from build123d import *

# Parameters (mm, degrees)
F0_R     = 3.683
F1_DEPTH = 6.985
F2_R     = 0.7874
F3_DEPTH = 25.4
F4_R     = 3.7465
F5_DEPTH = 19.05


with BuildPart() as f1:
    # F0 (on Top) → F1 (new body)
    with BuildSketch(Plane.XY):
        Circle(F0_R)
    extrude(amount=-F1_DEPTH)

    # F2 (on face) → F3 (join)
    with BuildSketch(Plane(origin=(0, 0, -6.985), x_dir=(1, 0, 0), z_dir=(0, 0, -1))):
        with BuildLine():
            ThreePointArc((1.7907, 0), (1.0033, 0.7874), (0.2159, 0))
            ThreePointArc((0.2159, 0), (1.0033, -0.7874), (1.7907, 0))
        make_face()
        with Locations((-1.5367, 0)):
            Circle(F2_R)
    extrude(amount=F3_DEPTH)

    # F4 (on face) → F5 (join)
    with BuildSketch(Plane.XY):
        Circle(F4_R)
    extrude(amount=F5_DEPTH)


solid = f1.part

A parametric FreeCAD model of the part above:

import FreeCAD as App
import Part
import Sketcher
Q = App.Units.Quantity

doc = App.newDocument("Part")
params = doc.addObject("Spreadsheet::Sheet", "Params")
for row, (alias, value) in enumerate([
    ("sketch1_diameter", "0.29 in"),
    ("pad1_length", "0.275 in"),
    ("sketch2_diameter", "0.062 in"),
    ("pad2_length", "1 in"),
    ("sketch3_diameter", "0.295 in"),
    ("pad3_length", "0.75 in"),
], start=1):
    params.set(f"A{row}", alias)
    params.set(f"B{row}", "=" + value)
    params.setAlias(f"B{row}", alias)

body = doc.addObject("PartDesign::Body", "Body")

sketch1 = body.newObject("Sketcher::SketchObject", "Sketch")
sketch1.AttachmentSupport = (doc.getObject("XY_Plane"), [""])
sketch1.MapMode = "FlatFace"
sketch1.addGeometry(Part.Circle(App.Vector(0, 0, 0), App.Vector(0, 0, 1), 3.683), False)
sketch1.addConstraint([
    Sketcher.Constraint("Coincident", 0, 3, -1, 1),
    Sketcher.Constraint("Diameter", 0, Q("0.29 in")),
])
sketch1.setExpression("Constraints[1]", "Params.sketch1_diameter")
pad1 = body.newObject("PartDesign::Pad", "Pad")
pad1.Profile = sketch1
pad1.setExpression("Length", "Params.pad1_length")
pad1.Reversed = True

sketch2 = body.newObject("Sketcher::SketchObject", "Sketch001")
sketch2.AttachmentSupport = (doc.getObject("XY_Plane"), [""])
sketch2.MapMode = "FlatFace"
sketch2.AttachmentOffset = App.Placement(App.Vector(0, 0, -0.275 * 25.4), App.Rotation())
sketch2.addGeometry([
    Part.Circle(App.Vector(1.0033, 0, 0), App.Vector(0, 0, 1), 0.7874),
    Part.Circle(App.Vector(-1.5367, 0, 0), App.Vector(0, 0, 1), 0.7874),
], False)
sketch2.addConstraint([
    Sketcher.Constraint("Equal", 0, 1),
    Sketcher.Constraint("PointOnObject", 0, 3, -1),
    Sketcher.Constraint("PointOnObject", 1, 3, -1),
    Sketcher.Constraint("Diameter", 0, Q("0.062 in")),
    Sketcher.Constraint("DistanceX", 1, 3, 0, 3, Q("0.1 in")),
    Sketcher.Constraint("DistanceX", -1, 1, 0, 3, Q("0.0395 in")),
])
sketch2.setExpression("Constraints[3]", "Params.sketch2_diameter")
pad2 = body.newObject("PartDesign::Pad", "Pad001")
pad2.Profile = sketch2
pad2.setExpression("Length", "Params.pad2_length")
pad2.Reversed = True

sketch3 = body.newObject("Sketcher::SketchObject", "Sketch002")
sketch3.AttachmentSupport = (doc.getObject("XY_Plane"), [""])
sketch3.MapMode = "FlatFace"
sketch3.addGeometry(Part.Circle(App.Vector(0, 0, 0), App.Vector(0, 0, 1), 3.7465), False)
sketch3.addConstraint([
    Sketcher.Constraint("Coincident", 0, 3, -1, 1),
    Sketcher.Constraint("Diameter", 0, Q("0.295 in")),
])
sketch3.setExpression("Constraints[1]", "Params.sketch3_diameter")
pad3 = body.newObject("PartDesign::Pad", "Pad002")
pad3.Profile = sketch3
pad3.setExpression("Length", "Params.pad3_length")

doc.recompute()
